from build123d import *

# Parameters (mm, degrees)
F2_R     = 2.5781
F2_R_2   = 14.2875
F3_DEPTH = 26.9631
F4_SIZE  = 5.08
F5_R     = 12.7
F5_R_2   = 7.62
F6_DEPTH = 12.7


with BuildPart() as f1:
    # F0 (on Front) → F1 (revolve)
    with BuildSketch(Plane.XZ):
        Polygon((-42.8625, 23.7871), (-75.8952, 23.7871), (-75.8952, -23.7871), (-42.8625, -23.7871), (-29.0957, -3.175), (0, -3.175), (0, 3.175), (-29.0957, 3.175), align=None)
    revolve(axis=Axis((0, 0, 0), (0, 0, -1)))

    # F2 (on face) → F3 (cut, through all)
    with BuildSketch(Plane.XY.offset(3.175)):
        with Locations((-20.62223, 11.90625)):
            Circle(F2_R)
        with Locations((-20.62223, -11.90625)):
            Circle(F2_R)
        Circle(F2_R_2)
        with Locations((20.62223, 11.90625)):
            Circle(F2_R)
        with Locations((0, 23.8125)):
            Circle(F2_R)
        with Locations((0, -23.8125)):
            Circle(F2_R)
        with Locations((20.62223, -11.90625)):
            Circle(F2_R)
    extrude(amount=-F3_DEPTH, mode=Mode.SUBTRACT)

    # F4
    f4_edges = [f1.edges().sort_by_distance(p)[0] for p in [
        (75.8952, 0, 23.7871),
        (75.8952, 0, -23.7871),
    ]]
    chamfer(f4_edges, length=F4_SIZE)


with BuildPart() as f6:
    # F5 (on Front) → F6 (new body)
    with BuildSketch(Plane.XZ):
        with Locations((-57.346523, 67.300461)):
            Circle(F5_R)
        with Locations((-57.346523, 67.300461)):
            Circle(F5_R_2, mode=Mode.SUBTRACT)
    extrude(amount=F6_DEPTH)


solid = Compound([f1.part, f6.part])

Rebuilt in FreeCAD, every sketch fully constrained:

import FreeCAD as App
import Part
import Sketcher

V = App.Vector
Q = App.Units.Quantity


def edges_at(feature, points):
    """Names of the edges that pass closest to the given points."""
    edges = feature.Shape.Edges
    near = lambda p: min(range(len(edges)), key=lambda i: edges[i].distToShape(Part.Vertex(*p))[0])
    return sorted({f"Edge{near(p) + 1}" for p in points})

doc = App.newDocument("Part")
params = doc.addObject("Spreadsheet::Sheet", "Params")
for row, (alias, value) in enumerate([
    ("sketch1_height", "0.25 in"),
    ("sketch1_height2", "1.873 in"),
    ("revolution_angle", "360 deg"),
    ("sketch2_diameter", "0.203 in"),
    ("sketch2_diameter2", "1.125 in"),
    ("chamfer_size", "0.2 in"),
    ("sketch3_diameter", "1 in"),
    ("sketch3_diameter2", "0.6 in"),
    ("pad1_length", "0.5 in"),
], start=1):
    params.set(f"A{row}", alias)
    params.set(f"B{row}", "=" + value)
    params.setAlias(f"B{row}", alias)

body = doc.addObject("PartDesign::Body", "Body")

sketch1 = body.newObject("Sketcher::SketchObject", "Sketch")
sketch1.AttachmentSupport = (doc.getObject("XZ_Plane"), [""])
sketch1.MapMode = "FlatFace"
sketch1.addGeometry([
    Part.LineSegment(V(-43, 24, 0), V(-76, 24, 0)),
    Part.LineSegment(V(-76, 24, 0), V(-76, -24, 0)),
    Part.LineSegment(V(-76, -24, 0), V(-43, -24, 0)),
    Part.LineSegment(V(-43, -24, 0), V(-29, -3, 0)),
    Part.LineSegment(V(-29, -3, 0), V(0, -3, 0)),
    Part.LineSegment(V(0, -3, 0), V(0, 3, 0)),
    Part.LineSegment(V(0, 3, 0), V(-29, 3, 0)),
    Part.LineSegment(V(-29, 3, 0), V(-43, 24, 0)),
], False)
sketch1.addConstraint([
    Sketcher.Constraint("Coincident", 0, 2, 1, 1),
    Sketcher.Constraint("Coincident", 1, 2, 2, 1),
    Sketcher.Constraint("Coincident", 2, 2, 3, 1),
    Sketcher.Constraint("Coincident", 3, 2, 4, 1),
    Sketcher.Constraint("Coincident", 4, 2, 5, 1),
    Sketcher.Constraint("Coincident", 5, 2, 6, 1),
    Sketcher.Constraint("Coincident", 6, 2, 7, 1),
    Sketcher.Constraint("Coincident", 7, 2, 0, 1),
    Sketcher.Constraint("Horizontal", 0),
    Sketcher.Constraint("Vertical", 1),
    Sketcher.Constraint("Horizontal", 2),
    Sketcher.Constraint("Horizontal", 4),
    Sketcher.Constraint("Vertical", 5),
    Sketcher.Constraint("Horizontal", 6),
    Sketcher.Constraint("Symmetric", 4, 2, 5, 2, -1, 1),
    Sketcher.Constraint("Symmetric", 2, 2, 7, 2, -1),
    Sketcher.Constraint("Vertical", 3, 2, 6, 2),
    Sketcher.Constraint("DistanceY", 5, 1, 5, 2, Q("0.25 in")),
    Sketcher.Constraint("DistanceY", 1, 2, 1, 1, Q("1.873 in")),
    Sketcher.Constraint("DistanceX", 0, 2, 0, 1, Q("1.3005 in")),
    Sketcher.Constraint("DistanceX", 4, 1, 4, 2, Q("1.1455 in")),
    Sketcher.Constraint("DistanceX", 0, 2, -1, 1, Q("2.988 in")),
])
sketch1.setExpression("Constraints[17]", "Params.sketch1_height")
sketch1.setExpression("Constraints[18]", "Params.sketch1_height2")
revolution = body.newObject("PartDesign::Revolution", "Revolution")
revolution.Profile = sketch1
revolution.ReferenceAxis = (sketch1, ["V_Axis"])
revolution.setExpression("Angle", "Params.revolution_angle")

sketch2 = body.newObject("Sketcher::SketchObject", "Sketch001")
sketch2.AttachmentSupport = (doc.getObject("XY_Plane"), [""])
sketch2.MapMode = "FlatFace"
sketch2.AttachmentOffset = App.Placement(V(0, 0, 0.125 * 25.4), App.Rotation())
sketch2.addGeometry([
    Part.Circle(V(-20.6, 11.9, 0), V(0, 0, 1), 2.6),
    Part.Circle(V(-20.6, -11.9, 0), V(0, 0, 1), 2.6),
    Part.Circle(V(0, 0, 0), V(0, 0, 1), 14.3),
    Part.Circle(V(20.6, 11.9, 0), V(0, 0, 1), 2.6),
    Part.Circle(V(0, 23.8, 0), V(0, 0, 1), 2.6),
    Part.Circle(V(0, -23.8, 0), V(0, 0, 1), 2.6),
    Part.Circle(V(20.6, -11.9, 0), V(0, 0, 1), 2.6),
], False)
sketch2.addConstraint([
    Sketcher.Constraint("Coincident", 2, 3, -1, 1),
    Sketcher.Constraint("Equal", 0, 1),
    Sketcher.Constraint("Equal", 1, 3),
    Sketcher.Constraint("Equal", 3, 4),
    Sketcher.Constraint("Equal", 4, 5),
    Sketcher.Constraint("Equal", 5, 6),
    Sketcher.Constraint("Symmetric", 1, 3, 3, 3, -1, 1),
    Sketcher.Constraint("Symmetric", 4, 3, 5, 3, -1, 1),
    Sketcher.Constraint("Symmetric", 0, 3, 6, 3, -1, 1),
    Sketcher.Constraint("Symmetric", 0, 3, 3, 3, -2),
    Sketcher.Constraint("PointOnObject", 4, 3, -2),
    Sketcher.Constraint("Diameter", 0, Q("0.203 in")),
    Sketcher.Constraint("Diameter", 2, Q("1.125 in")),
    Sketcher.Constraint("DistanceY", -1, 1, 0, 3, Q("0.46875 in")),
    Sketcher.Constraint("DistanceY", -1, 1, 4, 3, Q("0.9375 in")),
    Sketcher.Constraint("DistanceX", 0, 3, -1, 1, 20.62223),
])
sketch2.setExpression("Constraints[11]", "Params.sketch2_diameter")
sketch2.setExpression("Constraints[12]", "Params.sketch2_diameter2")
pocket1 = body.newObject("PartDesign::Pocket", "Pocket")
pocket1.Profile = sketch2
pocket1.Type = "ThroughAll"
doc.recompute()

chamfer = body.newObject("PartDesign::Chamfer", "Chamfer")
chamfer.Base = (pocket1, edges_at(pocket1, [(75.895, 0, 23.787), (75.895, 0, -23.787)]))
chamfer.setExpression("Size", "Params.chamfer_size")
body2 = doc.addObject("PartDesign::Body", "Body001")

sketch3 = body2.newObject("Sketcher::SketchObject", "Sketch002")
sketch3.AttachmentSupport = (doc.getObject("XZ_Plane001"), [""])
sketch3.MapMode = "FlatFace"
sketch3.addGeometry([
    Part.Circle(V(-57, 67, 0), V(0, 0, 1), 13),
    Part.Circle(V(-57, 67, 0), V(0, 0, 1), 8),
], False)
sketch3.addConstraint([
    Sketcher.Constraint("Coincident", 1, 3, 0, 3),
    Sketcher.Constraint("Diameter", 0, Q("1 in")),
    Sketcher.Constraint("Diameter", 1, Q("0.6 in")),
    Sketcher.Constraint("DistanceY", -1, 1, 0, 3, 67.300461),
    Sketcher.Constraint("DistanceX", 0, 3, -1, 1, 57.346523),
])
sketch3.setExpression("Constraints[1]", "Params.sketch3_diameter")
sketch3.setExpression("Constraints[2]", "Params.sketch3_diameter2")
pad1 = body2.newObject("PartDesign::Pad", "Pad")
pad1.Profile = sketch3
pad1.setExpression("Length", "Params.pad1_length")

doc.recompute()
